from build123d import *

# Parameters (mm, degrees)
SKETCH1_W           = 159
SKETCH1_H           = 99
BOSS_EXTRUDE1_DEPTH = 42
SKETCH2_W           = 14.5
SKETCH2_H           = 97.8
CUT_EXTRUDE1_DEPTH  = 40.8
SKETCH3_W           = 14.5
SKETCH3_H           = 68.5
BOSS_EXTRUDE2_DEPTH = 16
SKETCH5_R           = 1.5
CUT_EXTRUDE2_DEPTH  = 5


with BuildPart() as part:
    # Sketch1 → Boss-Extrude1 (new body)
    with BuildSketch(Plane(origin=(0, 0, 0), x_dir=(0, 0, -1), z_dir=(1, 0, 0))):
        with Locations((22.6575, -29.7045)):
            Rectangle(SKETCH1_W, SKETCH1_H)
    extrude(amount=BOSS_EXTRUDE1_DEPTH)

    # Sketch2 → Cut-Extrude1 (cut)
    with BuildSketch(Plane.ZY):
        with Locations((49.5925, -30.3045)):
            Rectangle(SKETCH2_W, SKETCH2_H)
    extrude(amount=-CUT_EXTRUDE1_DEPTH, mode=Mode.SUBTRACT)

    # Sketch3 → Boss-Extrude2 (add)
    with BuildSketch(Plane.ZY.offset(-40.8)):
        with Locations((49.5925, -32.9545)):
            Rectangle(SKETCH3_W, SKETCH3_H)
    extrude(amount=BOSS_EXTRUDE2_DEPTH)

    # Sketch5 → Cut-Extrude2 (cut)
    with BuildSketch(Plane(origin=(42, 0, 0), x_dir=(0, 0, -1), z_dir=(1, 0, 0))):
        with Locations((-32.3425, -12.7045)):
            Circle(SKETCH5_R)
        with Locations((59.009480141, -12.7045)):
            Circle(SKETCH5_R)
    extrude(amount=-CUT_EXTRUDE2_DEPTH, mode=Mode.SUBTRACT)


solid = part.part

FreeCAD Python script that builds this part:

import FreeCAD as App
import Part
import Sketcher

V = App.Vector


def add_polygon(sketch, points):
    """Adds a closed chain of lines whose ends are joined by coincident constraints."""
    first, n = sketch.GeometryCount, len(points)
    for a, b in zip(points, points[1:] + points[:1]):
        sketch.addGeometry(Part.LineSegment(App.Vector(*a, 0), App.Vector(*b, 0)), False)
    for i in range(n):
        sketch.addConstraint(Sketcher.Constraint("Coincident", first + i, 2, first + (i + 1) % n, 1))

doc = App.newDocument("Part")
body = doc.addObject("PartDesign::Body", "Body")

sketch1 = body.newObject("Sketcher::SketchObject", "Sketch")
sketch1.AttachmentSupport = (doc.getObject("YZ_Plane"), [""])
sketch1.MapMode = "FlatFace"
add_polygon(sketch1, [(20, 57), (-79, 57), (-79, -102), (20, -102)])
sketch1.addConstraint([
    Sketcher.Constraint("Horizontal", 0),
    Sketcher.Constraint("Vertical", 1),
    Sketcher.Constraint("Horizontal", 2),
    Sketcher.Constraint("Vertical", 3),
    Sketcher.Constraint("DistanceX", 0, 2, 0, 1, 99.0),
    Sketcher.Constraint("DistanceY", 1, 2, 1, 1, 159.0),
    Sketcher.Constraint("DistanceX", 0, 2, -1, 1, 79.2045),
    Sketcher.Constraint("DistanceY", -1, 1, 0, 2, 56.8425),
])
pad1 = body.newObject("PartDesign::Pad", "Pad")
pad1.Profile = sketch1
pad1.Length = 42

sketch2 = body.newObject("Sketcher::SketchObject", "Sketch001")
sketch2.AttachmentSupport = (doc.getObject("YZ_Plane"), [""])
sketch2.MapMode = "FlatFace"
add_polygon(sketch2, [(19, 42), (-79, 42), (-79, 57), (19, 57)])
sketch2.addConstraint([
    Sketcher.Constraint("Horizontal", 0),
    Sketcher.Constraint("Vertical", 1),
    Sketcher.Constraint("Horizontal", 2),
    Sketcher.Constraint("Vertical", 3),
    Sketcher.Constraint("DistanceX", 0, 2, 0, 1, 97.8),
    Sketcher.Constraint("DistanceY", 1, 1, 1, 2, 14.5),
    Sketcher.Constraint("DistanceX", 0, 2, -1, 1, 79.2045),
    Sketcher.Constraint("DistanceY", -1, 1, 0, 2, 42.3425),
])
pocket1 = body.newObject("PartDesign::Pocket", "Pocket")
pocket1.Profile = sketch2
pocket1.Length = 40.8
pocket1.Reversed = True

sketch3 = body.newObject("Sketcher::SketchObject", "Sketch002")
sketch3.AttachmentSupport = (doc.getObject("YZ_Plane"), [""])
sketch3.MapMode = "FlatFace"
sketch3.AttachmentOffset = App.Placement(V(0, 0, 40.8), App.Rotation())
add_polygon(sketch3, [(1, 42), (-67, 42), (-67, 57), (1, 57)])
sketch3.addConstraint([
    Sketcher.Constraint("Horizontal", 0),
    Sketcher.Constraint("Vertical", 1),
    Sketcher.Constraint("Horizontal", 2),
    Sketcher.Constraint("Vertical", 3),
    Sketcher.Constraint("DistanceX", 0, 2, 0, 1, 68.5),
    Sketcher.Constraint("DistanceY", 1, 1, 1, 2, 14.5),
    Sketcher.Constraint("DistanceX", 0, 2, -1, 1, 67.2045),
    Sketcher.Constraint("DistanceY", -1, 1, 0, 2, 42.3425),
])
pad2 = body.newObject("PartDesign::Pad", "Pad001")
pad2.Profile = sketch3
pad2.Length = 16
pad2.Reversed = True

sketch4 = body.newObject("Sketcher::SketchObject", "Sketch003")
sketch4.AttachmentSupport = (doc.getObject("YZ_Plane"), [""])
sketch4.MapMode = "FlatFace"
sketch4.AttachmentOffset = App.Placement(V(0, 0, 42), App.Rotation())
sketch4.addGeometry([
    Part.Circle(V(-12.7, 32.3, 0), V(0, 0, 1), 1.5),
    Part.Circle(V(-12.7, -59, 0), V(0, 0, 1), 1.5),
], False)
sketch4.addConstraint([
    Sketcher.Constraint("Equal", 0, 1),
    Sketcher.Constraint("Vertical", 0, 3, 1, 3),
    Sketcher.Constraint("Diameter", 0, 3.0),
    Sketcher.Constraint("DistanceX", 0, 3, -1, 1, 12.7045),
    Sketcher.Constraint("DistanceY", -1, 1, 0, 3, 32.3425),
    Sketcher.Constraint("DistanceY", 1, 3, -1, 1, 59.00948),
])
pocket2 = body.newObject("PartDesign::Pocket", "Pocket001")
pocket2.Profile = sketch4
pocket2.Length = 5

doc.recompute()
